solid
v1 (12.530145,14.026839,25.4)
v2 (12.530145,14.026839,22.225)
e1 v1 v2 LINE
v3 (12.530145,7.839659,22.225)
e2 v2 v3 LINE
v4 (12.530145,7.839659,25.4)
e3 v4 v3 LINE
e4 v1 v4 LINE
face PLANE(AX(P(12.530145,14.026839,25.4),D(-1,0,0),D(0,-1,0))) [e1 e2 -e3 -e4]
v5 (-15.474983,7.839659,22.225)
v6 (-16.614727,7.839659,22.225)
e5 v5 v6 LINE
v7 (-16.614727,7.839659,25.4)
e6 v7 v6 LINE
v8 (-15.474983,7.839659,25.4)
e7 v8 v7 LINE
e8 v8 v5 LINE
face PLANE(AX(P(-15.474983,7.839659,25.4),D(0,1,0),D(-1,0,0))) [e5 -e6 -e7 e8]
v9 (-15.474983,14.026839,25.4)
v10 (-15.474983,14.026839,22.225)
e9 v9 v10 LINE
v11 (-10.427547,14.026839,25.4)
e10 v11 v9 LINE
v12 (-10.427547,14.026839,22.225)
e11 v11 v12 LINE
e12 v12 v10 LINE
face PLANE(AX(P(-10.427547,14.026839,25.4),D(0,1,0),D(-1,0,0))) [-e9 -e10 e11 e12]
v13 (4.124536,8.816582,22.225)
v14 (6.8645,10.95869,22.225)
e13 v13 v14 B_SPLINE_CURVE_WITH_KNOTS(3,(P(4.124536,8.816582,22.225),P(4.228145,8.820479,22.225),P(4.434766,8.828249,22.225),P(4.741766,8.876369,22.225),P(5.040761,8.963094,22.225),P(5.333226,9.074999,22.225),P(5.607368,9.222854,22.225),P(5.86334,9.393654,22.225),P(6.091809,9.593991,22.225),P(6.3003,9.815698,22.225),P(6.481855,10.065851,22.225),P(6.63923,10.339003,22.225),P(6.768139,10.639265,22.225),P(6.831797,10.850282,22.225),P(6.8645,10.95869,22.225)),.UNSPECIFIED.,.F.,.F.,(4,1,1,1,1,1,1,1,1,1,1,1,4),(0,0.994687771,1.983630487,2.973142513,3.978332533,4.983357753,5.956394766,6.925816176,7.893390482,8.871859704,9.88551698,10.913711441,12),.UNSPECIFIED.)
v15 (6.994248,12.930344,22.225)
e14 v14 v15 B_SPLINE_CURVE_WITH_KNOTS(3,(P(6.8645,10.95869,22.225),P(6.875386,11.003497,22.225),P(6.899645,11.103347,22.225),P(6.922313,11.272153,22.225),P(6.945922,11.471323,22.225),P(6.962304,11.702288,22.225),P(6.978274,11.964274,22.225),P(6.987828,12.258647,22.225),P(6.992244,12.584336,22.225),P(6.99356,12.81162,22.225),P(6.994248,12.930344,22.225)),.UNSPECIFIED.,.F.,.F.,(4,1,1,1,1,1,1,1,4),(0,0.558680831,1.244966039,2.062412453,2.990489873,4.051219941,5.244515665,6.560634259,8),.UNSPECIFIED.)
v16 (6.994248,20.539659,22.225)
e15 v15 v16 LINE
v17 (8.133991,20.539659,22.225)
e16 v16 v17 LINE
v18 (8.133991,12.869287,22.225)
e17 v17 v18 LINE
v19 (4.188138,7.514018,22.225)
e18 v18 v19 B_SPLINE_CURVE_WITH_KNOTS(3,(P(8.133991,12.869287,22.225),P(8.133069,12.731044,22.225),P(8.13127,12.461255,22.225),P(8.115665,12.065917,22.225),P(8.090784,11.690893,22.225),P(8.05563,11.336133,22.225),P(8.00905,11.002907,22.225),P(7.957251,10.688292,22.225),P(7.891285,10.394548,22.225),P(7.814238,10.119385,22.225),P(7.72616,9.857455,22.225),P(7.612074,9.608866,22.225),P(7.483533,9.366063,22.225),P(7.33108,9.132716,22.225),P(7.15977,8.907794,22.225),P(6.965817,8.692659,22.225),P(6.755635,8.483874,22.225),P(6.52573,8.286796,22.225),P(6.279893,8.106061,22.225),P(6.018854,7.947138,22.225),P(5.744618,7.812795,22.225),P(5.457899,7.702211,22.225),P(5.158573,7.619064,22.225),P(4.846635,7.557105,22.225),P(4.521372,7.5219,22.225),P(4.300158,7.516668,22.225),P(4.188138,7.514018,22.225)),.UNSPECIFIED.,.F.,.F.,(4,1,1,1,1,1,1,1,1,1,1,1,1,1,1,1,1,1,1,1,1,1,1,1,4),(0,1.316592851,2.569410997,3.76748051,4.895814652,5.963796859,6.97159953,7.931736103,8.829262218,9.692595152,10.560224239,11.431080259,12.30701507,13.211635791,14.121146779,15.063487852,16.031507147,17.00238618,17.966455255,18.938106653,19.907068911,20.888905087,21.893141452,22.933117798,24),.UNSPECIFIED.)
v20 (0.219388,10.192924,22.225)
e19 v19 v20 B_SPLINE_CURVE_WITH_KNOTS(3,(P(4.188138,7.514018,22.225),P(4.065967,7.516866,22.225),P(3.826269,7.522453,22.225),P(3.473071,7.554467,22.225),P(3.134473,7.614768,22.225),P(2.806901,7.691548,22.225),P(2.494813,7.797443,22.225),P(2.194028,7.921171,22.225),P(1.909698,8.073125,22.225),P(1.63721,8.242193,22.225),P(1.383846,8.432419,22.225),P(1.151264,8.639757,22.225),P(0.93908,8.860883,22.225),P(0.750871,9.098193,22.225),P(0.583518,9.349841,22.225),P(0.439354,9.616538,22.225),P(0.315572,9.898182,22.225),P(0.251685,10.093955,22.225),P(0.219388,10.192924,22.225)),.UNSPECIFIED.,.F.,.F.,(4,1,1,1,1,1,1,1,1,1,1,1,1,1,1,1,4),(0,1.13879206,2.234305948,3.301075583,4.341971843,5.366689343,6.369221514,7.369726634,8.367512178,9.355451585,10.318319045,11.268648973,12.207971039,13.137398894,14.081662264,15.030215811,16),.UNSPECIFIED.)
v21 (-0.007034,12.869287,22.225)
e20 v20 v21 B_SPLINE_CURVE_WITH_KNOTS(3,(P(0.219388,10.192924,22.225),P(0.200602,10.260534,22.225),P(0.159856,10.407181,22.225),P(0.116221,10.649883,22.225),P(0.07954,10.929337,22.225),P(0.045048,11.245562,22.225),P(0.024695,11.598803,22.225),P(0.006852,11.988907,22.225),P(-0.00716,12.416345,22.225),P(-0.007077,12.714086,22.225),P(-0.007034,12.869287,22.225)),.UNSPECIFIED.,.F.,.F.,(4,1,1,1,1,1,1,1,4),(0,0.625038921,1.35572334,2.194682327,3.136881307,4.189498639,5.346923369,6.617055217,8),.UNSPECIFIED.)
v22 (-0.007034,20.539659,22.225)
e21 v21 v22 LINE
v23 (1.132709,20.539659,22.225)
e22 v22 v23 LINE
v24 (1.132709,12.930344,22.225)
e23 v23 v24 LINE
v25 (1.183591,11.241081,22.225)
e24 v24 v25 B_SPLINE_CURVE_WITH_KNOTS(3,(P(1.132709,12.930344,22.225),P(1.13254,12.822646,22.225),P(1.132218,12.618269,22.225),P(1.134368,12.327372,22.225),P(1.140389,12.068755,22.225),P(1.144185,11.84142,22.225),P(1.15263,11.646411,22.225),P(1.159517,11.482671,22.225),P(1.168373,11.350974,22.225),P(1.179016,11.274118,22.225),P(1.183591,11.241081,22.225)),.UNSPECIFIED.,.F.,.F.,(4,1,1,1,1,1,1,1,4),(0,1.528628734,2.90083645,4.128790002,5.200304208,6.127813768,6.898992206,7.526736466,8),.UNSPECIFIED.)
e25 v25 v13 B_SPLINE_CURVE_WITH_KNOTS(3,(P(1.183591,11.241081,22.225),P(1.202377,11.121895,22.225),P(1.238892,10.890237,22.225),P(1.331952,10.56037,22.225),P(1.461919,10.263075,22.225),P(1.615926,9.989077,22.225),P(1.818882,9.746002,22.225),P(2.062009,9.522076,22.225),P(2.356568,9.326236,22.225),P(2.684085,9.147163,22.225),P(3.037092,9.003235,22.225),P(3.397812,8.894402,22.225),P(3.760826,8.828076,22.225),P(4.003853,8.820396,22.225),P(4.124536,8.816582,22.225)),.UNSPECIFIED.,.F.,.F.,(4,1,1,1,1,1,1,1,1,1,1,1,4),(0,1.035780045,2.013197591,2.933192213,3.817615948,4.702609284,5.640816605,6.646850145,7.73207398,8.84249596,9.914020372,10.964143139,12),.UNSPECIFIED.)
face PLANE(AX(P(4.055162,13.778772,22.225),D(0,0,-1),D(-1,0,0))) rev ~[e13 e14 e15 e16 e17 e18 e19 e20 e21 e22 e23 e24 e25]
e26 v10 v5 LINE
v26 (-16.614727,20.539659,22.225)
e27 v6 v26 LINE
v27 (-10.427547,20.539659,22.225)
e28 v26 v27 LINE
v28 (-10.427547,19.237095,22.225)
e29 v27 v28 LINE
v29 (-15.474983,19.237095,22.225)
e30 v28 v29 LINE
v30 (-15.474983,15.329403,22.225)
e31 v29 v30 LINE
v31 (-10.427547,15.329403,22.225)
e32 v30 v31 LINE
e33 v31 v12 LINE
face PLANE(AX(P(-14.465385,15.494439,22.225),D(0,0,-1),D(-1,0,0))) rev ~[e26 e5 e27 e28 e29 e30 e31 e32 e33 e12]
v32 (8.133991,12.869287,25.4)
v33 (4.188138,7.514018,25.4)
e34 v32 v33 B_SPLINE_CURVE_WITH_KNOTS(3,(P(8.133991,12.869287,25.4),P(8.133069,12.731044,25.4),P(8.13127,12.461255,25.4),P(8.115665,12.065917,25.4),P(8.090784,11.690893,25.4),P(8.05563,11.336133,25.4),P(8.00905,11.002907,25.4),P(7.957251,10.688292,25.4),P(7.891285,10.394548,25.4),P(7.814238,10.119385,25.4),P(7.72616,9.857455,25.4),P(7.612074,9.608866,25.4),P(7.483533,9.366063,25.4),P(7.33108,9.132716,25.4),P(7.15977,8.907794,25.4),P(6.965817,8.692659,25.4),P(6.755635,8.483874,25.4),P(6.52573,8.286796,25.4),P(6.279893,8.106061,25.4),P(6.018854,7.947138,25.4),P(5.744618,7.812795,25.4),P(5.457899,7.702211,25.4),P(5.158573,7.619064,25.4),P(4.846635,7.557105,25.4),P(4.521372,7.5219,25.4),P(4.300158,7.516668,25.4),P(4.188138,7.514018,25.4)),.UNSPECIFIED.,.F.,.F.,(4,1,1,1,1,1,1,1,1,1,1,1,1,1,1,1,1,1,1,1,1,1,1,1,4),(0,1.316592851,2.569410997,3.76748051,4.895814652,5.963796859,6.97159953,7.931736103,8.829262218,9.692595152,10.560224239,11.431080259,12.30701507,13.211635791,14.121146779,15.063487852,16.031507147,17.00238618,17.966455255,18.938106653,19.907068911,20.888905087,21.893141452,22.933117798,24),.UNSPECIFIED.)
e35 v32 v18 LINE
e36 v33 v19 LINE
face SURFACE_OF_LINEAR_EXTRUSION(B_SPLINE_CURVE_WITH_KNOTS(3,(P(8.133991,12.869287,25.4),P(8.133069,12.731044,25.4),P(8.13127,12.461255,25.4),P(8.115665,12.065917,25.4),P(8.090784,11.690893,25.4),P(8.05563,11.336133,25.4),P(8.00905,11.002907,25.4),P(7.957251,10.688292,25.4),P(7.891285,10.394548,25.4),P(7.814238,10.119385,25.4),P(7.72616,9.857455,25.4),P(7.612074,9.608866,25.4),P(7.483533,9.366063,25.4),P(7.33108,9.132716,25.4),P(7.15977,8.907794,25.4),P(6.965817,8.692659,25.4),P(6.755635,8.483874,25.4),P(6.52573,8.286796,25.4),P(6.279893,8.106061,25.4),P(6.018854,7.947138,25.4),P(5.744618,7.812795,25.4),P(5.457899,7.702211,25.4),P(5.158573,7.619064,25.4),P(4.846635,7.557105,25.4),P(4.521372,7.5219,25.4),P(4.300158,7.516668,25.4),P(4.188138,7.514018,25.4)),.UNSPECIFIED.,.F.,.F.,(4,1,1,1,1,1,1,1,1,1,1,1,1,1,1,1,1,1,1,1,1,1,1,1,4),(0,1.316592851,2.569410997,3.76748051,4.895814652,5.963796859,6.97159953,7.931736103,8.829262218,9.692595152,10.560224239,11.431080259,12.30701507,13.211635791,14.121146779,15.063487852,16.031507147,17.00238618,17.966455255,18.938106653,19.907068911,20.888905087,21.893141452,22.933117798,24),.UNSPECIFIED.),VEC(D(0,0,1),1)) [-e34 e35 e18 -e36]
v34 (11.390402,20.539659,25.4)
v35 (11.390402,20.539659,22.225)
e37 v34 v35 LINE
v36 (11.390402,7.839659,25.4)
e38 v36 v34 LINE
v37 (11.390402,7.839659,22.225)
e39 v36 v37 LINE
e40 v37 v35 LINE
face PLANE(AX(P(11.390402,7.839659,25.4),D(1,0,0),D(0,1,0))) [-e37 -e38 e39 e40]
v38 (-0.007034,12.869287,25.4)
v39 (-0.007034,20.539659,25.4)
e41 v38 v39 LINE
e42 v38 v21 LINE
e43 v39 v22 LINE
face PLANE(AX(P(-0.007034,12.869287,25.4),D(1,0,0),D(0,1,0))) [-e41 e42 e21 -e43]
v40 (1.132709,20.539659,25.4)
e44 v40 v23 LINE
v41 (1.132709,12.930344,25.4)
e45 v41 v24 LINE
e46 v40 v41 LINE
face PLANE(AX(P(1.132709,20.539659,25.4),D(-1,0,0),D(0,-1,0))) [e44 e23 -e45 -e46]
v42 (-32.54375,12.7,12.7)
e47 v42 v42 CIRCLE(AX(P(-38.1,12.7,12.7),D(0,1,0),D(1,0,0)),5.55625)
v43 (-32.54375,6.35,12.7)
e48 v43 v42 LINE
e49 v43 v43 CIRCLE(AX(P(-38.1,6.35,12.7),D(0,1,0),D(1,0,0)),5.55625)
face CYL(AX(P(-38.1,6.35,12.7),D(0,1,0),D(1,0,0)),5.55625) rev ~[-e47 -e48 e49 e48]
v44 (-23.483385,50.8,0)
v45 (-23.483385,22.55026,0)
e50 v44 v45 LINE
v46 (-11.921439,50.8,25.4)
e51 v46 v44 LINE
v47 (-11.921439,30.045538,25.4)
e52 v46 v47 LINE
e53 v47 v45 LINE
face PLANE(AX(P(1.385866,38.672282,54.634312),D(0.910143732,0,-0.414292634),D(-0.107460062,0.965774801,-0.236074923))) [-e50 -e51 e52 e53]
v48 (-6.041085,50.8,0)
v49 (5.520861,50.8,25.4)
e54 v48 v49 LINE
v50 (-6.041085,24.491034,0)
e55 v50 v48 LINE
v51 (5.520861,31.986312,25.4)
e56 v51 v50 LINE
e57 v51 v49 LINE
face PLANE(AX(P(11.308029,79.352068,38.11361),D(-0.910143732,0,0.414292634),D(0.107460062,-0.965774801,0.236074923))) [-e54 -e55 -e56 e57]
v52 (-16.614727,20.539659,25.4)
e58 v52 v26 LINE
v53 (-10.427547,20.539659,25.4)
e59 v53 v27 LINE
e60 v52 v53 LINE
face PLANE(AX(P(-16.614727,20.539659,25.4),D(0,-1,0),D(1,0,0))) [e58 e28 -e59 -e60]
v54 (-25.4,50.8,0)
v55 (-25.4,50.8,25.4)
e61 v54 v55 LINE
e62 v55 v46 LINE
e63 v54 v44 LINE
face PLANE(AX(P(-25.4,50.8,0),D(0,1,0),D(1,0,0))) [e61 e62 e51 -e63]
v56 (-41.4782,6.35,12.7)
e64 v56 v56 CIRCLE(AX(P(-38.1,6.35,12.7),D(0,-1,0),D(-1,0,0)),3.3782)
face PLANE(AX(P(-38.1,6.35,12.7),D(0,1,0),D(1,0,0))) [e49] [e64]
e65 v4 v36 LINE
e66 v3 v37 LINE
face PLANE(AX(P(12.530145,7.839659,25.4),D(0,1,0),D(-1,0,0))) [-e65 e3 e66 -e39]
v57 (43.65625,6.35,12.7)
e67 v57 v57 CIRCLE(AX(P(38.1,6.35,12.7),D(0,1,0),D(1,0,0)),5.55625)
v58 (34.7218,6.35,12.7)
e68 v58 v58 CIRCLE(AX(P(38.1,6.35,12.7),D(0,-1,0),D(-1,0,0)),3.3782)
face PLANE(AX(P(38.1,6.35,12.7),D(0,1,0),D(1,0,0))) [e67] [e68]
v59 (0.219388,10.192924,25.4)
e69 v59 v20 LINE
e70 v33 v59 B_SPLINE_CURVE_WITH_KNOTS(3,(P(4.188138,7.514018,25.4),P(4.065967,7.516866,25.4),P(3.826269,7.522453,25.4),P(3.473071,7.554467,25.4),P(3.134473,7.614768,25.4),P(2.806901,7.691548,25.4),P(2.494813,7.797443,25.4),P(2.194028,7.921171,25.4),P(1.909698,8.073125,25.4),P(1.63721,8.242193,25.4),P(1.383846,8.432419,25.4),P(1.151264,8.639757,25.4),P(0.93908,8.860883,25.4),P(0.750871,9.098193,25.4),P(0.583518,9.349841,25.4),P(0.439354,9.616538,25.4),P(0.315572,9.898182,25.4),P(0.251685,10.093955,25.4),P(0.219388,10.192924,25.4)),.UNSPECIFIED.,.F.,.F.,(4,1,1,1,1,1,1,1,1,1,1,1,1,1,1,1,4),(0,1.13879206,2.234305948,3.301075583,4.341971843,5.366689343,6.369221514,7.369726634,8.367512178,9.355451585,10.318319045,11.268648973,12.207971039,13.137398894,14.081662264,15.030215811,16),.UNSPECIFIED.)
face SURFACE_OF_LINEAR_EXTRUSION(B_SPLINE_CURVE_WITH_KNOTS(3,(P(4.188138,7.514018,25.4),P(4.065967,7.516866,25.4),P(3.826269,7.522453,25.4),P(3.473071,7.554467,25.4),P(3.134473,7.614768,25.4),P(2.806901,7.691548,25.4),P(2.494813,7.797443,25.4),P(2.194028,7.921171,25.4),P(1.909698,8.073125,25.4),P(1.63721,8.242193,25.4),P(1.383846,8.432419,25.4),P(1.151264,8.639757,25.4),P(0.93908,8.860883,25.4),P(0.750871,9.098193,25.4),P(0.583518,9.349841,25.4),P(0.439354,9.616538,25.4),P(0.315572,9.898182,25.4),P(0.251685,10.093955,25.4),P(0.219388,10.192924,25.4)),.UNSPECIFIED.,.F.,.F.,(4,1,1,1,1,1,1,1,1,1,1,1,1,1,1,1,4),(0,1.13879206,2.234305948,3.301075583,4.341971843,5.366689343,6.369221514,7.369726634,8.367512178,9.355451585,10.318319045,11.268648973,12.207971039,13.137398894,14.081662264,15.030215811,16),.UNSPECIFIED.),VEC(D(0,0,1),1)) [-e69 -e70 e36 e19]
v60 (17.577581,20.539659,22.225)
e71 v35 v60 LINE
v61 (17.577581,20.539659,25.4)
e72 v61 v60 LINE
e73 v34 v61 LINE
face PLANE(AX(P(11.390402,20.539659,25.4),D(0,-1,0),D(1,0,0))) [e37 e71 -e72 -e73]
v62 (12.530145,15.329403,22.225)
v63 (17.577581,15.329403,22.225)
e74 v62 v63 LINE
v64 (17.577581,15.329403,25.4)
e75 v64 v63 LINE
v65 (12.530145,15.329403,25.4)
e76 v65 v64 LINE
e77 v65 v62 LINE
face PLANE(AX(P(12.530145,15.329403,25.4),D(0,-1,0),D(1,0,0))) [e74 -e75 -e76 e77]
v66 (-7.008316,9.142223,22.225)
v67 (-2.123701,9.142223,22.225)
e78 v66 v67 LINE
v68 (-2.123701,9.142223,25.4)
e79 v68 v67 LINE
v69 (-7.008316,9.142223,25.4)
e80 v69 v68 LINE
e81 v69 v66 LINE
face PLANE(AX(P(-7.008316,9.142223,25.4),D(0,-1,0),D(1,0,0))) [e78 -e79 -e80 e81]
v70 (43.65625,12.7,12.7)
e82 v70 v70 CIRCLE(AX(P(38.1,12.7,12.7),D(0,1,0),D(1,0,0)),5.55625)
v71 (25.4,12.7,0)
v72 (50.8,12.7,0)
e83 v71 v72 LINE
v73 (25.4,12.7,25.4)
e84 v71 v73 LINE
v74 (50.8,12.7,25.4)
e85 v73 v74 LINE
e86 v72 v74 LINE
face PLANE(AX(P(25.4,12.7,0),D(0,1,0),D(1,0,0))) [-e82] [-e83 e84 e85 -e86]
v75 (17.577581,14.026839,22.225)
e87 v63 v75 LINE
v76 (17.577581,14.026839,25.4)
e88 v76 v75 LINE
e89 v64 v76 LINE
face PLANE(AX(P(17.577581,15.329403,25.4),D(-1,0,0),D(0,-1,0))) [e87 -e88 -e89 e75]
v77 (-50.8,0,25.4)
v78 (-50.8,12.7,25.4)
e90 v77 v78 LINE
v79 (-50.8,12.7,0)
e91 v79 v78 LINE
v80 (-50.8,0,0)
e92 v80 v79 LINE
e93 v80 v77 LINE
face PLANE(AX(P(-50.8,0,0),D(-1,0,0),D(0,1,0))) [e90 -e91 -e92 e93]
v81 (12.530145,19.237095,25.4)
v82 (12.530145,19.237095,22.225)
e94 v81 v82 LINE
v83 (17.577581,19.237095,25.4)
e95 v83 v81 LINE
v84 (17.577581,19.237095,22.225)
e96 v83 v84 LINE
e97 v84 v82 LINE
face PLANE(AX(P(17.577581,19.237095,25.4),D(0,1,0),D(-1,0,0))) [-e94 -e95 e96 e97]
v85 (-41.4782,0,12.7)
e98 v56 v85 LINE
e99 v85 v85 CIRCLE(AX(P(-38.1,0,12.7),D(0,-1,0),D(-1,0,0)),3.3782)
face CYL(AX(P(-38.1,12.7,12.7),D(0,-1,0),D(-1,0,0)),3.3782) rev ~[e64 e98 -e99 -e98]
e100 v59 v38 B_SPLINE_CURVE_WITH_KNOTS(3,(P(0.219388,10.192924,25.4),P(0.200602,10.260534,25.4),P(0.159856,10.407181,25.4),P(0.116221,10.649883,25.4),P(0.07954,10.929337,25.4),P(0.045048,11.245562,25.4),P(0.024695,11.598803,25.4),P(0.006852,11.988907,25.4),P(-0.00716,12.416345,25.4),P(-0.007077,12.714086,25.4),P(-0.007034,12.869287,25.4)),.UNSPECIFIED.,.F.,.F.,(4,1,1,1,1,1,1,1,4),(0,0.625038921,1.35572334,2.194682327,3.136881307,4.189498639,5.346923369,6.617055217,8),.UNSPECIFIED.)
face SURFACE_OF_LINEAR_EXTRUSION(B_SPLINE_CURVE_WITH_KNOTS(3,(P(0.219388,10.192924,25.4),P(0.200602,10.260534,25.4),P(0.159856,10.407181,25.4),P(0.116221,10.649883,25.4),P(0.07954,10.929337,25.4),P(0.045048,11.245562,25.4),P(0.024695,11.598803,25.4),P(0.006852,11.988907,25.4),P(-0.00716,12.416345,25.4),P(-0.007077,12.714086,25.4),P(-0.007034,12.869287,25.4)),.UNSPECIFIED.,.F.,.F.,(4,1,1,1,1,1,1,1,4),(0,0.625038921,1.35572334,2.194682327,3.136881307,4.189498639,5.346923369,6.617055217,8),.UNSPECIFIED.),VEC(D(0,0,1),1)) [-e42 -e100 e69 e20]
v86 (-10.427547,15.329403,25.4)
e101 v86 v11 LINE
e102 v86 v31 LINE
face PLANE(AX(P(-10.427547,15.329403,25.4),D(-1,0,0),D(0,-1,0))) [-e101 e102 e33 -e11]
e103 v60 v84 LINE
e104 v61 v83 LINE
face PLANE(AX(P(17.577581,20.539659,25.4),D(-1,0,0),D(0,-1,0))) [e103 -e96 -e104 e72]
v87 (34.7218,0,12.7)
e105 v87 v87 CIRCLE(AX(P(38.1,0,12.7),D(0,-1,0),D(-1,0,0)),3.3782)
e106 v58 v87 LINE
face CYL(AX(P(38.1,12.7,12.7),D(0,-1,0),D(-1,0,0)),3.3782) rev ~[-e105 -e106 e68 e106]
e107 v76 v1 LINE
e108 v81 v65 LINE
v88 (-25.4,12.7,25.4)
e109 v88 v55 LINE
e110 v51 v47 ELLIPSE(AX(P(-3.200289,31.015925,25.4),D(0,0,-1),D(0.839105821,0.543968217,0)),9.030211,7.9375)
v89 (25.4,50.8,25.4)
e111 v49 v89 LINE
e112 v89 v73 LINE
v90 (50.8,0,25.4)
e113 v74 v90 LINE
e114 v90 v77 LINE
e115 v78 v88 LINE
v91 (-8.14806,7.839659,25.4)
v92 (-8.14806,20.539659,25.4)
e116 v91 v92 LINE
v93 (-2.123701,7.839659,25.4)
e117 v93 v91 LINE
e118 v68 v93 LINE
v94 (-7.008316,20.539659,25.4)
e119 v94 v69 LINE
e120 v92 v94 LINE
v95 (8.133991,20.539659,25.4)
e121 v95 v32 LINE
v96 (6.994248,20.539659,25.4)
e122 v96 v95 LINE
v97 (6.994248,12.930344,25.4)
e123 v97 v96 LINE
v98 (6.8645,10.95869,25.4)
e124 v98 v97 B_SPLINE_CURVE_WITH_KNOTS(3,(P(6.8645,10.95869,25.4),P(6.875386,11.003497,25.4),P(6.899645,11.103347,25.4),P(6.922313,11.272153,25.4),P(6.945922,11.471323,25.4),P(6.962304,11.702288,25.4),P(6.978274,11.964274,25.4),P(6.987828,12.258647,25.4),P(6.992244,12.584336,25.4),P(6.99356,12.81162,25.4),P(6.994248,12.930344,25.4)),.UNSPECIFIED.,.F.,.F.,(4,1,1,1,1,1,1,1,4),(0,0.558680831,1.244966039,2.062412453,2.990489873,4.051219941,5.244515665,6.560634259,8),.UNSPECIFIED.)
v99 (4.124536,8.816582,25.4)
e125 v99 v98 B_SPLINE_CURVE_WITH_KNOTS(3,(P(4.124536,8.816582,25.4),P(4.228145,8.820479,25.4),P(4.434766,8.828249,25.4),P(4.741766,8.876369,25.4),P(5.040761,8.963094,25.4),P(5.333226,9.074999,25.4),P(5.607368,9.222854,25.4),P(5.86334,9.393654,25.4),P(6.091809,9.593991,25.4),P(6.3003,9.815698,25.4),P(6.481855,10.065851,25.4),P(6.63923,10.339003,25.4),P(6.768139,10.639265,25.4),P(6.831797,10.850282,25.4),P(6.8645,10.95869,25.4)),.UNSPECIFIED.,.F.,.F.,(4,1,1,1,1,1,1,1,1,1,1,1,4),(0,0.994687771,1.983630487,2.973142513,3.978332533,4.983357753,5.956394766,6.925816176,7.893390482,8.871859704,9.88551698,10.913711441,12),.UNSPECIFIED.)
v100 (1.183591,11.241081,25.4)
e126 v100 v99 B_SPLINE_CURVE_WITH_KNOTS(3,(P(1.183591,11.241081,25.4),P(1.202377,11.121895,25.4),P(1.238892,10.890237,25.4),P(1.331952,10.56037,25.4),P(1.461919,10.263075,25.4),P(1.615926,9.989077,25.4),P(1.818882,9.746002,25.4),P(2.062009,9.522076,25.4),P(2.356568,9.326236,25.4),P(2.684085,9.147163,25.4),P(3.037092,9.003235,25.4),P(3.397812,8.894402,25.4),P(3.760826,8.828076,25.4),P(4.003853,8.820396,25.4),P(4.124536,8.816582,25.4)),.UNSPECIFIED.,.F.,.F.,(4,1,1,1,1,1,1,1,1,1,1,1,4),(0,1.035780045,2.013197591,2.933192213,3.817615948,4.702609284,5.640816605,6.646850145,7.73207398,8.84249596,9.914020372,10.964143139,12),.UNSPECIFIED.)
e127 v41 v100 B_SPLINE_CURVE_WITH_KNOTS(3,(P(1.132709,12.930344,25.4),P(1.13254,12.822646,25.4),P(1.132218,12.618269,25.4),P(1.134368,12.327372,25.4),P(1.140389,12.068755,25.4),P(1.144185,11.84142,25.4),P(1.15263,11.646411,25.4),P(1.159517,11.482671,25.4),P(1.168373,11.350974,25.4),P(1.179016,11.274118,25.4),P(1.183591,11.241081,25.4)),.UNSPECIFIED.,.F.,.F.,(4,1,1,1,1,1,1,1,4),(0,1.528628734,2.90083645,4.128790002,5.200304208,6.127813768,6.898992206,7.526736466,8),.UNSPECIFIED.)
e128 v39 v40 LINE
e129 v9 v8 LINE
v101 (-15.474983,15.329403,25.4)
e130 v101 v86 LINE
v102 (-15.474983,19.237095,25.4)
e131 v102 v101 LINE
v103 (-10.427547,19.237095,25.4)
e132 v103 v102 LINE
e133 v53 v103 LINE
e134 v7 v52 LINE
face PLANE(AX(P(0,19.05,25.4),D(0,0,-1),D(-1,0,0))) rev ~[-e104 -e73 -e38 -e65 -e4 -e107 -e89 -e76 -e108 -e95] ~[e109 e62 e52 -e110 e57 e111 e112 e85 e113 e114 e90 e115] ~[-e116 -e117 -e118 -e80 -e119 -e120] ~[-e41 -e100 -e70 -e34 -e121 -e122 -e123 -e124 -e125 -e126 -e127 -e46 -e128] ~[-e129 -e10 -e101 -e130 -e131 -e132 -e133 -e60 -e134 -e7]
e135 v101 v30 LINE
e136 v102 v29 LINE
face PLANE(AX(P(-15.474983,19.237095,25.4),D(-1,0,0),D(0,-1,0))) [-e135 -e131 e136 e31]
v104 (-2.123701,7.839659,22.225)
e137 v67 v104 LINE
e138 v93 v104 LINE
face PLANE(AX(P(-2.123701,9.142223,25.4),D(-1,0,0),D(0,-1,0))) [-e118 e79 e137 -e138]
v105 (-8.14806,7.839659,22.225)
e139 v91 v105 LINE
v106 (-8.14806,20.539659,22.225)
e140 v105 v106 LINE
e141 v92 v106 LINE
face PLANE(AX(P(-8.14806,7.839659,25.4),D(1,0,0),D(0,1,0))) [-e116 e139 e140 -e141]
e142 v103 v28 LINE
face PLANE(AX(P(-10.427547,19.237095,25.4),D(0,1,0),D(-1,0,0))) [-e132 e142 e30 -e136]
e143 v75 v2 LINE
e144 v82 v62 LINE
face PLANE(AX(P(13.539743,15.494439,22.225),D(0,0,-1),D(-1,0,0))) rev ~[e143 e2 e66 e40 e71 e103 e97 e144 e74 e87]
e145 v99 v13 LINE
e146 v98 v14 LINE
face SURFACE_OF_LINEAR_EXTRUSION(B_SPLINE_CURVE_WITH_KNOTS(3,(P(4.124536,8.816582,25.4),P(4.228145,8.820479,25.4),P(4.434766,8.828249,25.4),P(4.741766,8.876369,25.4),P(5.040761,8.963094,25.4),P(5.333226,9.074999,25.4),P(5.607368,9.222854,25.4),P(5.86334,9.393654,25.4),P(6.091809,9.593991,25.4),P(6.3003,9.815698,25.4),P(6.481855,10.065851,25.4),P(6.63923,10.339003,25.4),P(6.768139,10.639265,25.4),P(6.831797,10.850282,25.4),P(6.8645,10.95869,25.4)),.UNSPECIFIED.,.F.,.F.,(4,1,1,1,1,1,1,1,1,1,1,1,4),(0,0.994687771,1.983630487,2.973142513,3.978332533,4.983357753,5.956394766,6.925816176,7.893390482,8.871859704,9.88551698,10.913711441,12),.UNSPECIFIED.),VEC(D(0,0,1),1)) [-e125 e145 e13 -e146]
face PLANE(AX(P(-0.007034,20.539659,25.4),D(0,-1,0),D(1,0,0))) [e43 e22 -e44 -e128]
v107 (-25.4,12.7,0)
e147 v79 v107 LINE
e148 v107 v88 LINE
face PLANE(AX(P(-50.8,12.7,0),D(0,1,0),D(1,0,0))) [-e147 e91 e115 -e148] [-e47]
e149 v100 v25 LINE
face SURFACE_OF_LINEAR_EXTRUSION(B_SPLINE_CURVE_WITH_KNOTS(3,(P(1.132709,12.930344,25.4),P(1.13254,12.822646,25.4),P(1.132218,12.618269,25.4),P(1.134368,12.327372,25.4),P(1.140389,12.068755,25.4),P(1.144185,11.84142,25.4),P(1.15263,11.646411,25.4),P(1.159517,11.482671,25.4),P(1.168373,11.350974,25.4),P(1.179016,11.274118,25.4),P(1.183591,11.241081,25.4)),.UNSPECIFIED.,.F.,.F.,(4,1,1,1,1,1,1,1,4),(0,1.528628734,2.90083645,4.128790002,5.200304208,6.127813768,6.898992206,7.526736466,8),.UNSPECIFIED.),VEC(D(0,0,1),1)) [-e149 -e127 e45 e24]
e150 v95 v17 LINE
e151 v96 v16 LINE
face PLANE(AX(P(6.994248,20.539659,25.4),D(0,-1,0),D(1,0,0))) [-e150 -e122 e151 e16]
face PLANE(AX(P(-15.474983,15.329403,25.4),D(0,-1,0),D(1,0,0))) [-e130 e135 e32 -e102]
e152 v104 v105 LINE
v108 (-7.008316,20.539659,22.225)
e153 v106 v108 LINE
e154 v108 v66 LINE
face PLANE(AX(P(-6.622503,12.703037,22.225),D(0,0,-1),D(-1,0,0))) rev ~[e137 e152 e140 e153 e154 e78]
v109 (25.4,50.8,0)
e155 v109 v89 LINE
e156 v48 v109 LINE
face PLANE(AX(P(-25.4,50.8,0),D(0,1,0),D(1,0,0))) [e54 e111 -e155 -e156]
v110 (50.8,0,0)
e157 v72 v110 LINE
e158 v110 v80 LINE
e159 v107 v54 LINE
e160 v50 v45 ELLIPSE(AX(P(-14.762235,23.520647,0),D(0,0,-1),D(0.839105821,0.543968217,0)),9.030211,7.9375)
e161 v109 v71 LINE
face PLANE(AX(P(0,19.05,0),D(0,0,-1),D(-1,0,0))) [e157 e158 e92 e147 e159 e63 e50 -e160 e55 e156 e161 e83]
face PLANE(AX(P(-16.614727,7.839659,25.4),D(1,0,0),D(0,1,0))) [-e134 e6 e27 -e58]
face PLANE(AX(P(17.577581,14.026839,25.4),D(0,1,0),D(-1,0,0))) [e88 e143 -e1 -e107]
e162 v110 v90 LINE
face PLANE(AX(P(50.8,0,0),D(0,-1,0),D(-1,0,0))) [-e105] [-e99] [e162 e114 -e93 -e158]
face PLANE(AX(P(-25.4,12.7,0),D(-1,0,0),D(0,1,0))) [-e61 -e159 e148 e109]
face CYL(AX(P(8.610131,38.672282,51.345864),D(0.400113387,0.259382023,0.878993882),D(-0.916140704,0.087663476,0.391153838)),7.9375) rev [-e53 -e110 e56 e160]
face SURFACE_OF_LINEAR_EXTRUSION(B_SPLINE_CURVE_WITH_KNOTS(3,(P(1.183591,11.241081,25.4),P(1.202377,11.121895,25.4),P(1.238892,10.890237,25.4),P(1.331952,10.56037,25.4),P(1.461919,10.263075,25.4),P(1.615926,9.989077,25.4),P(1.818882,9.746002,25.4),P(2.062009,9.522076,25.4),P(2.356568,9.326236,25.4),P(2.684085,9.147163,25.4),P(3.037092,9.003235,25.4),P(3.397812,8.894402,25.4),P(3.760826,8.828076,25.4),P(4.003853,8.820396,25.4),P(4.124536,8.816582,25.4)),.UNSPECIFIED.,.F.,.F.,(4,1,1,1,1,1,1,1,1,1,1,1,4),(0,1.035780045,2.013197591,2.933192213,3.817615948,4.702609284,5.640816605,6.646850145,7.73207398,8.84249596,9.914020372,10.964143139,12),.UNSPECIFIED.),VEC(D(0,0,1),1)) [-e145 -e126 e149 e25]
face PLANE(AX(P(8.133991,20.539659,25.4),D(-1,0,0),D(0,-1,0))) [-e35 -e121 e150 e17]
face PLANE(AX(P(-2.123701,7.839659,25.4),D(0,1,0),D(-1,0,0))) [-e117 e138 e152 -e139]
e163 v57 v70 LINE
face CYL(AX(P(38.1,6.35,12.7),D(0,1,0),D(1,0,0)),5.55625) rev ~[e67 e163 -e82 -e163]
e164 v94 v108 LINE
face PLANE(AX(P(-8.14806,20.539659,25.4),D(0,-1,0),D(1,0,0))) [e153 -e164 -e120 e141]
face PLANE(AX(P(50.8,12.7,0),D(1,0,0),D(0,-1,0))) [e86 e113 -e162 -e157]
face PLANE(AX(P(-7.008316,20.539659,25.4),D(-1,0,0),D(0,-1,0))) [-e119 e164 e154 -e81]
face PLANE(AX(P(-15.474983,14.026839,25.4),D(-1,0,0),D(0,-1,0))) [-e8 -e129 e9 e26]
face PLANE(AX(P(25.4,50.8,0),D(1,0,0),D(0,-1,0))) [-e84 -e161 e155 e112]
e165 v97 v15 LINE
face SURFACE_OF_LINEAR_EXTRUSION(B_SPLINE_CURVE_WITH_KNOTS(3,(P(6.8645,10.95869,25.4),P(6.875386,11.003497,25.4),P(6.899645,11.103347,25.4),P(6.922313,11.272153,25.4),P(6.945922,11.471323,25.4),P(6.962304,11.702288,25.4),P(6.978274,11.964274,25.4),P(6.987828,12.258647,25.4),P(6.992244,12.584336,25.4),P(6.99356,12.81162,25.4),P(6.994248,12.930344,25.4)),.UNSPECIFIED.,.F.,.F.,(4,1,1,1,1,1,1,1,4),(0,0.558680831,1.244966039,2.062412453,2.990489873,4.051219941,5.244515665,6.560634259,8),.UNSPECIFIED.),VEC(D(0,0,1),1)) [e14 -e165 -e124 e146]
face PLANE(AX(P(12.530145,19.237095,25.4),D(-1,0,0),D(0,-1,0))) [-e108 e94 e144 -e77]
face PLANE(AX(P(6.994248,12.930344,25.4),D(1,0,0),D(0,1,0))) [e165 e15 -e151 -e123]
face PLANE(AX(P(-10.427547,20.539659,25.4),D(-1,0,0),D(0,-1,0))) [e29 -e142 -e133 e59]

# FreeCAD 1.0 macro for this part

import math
import FreeCAD as App
import Part
import Sketcher
Q = App.Units.Quantity

doc = App.newDocument("Part")
body = doc.addObject("PartDesign::Body", "Body")

sketch1 = body.newObject("Sketcher::SketchObject", "Sketch")
sketch1.AttachmentSupport = (doc.getObject("XY_Plane"), [""])
sketch1.MapMode = "FlatFace"
sketch1.addGeometry([
    Part.LineSegment(App.Vector(51, 13, 0), App.Vector(25, 13, 0)),
    Part.LineSegment(App.Vector(25, 13, 0), App.Vector(25, 51, 0)),
    Part.LineSegment(App.Vector(25, 51, 0), App.Vector(-25, 51, 0)),
    Part.LineSegment(App.Vector(-25, 51, 0), App.Vector(-25, 13, 0)),
    Part.LineSegment(App.Vector(-25, 13, 0), App.Vector(-51, 13, 0)),
    Part.LineSegment(App.Vector(-51, 13, 0), App.Vector(-51, 0, 0)),
    Part.LineSegment(App.Vector(-51, 0, 0), App.Vector(51, 0, 0)),
    Part.LineSegment(App.Vector(51, 0, 0), App.Vector(51, 13, 0)),
], False)
sketch1.addConstraint([
    Sketcher.Constraint("Coincident", 0, 2, 1, 1),
    Sketcher.Constraint("Coincident", 1, 2, 2, 1),
    Sketcher.Constraint("Coincident", 2, 2, 3, 1),
    Sketcher.Constraint("Coincident", 3, 2, 4, 1),
    Sketcher.Constraint("Coincident", 4, 2, 5, 1),
    Sketcher.Constraint("Coincident", 5, 2, 6, 1),
    Sketcher.Constraint("Coincident", 6, 2, 7, 1),
    Sketcher.Constraint("Coincident", 7, 2, 0, 1),
    Sketcher.Constraint("Horizontal", 0),
    Sketcher.Constraint("Vertical", 1),
    Sketcher.Constraint("Horizontal", 2),
    Sketcher.Constraint("Vertical", 3),
    Sketcher.Constraint("Horizontal", 4),
    Sketcher.Constraint("Vertical", 5),
    Sketcher.Constraint("Horizontal", 6),
    Sketcher.Constraint("Vertical", 7),
    Sketcher.Constraint("Symmetric", 5, 2, 6, 2, -1, 1),
    Sketcher.Constraint("Symmetric", 0, 2, 3, 2, -2),
    Sketcher.Constraint("DistanceX", 0, 2, 0, 1, Q("1 in")),
    Sketcher.Constraint("DistanceX", 2, 2, 2, 1, Q("2 in")),
    Sketcher.Constraint("DistanceY", 1, 1, 1, 2, Q("1.5 in")),
    Sketcher.Constraint("DistanceY", 5, 2, 5, 1, Q("0.5 in")),
])
pad1 = body.newObject("PartDesign::Pad", "Pad")
pad1.Profile = sketch1
pad1.Length = Q("1 in")

sketch2 = body.newObject("Sketcher::SketchObject", "Sketch001")
sketch2.AttachmentSupport = (doc.getObject("XZ_Plane"), [""])
sketch2.MapMode = "FlatFace"
sketch2.AttachmentOffset = App.Placement(App.Vector(0, 0, -0.5 * 25.4), App.Rotation())
sketch2.addGeometry([
    Part.Circle(App.Vector(-38.1, 12.7, 0), App.Vector(0, 0, 1), 3.4),
    Part.Circle(App.Vector(38.1, 12.7, 0), App.Vector(0, 0, 1), 3.4),
], False)
sketch2.addConstraint([
    Sketcher.Constraint("Equal", 0, 1),
    Sketcher.Constraint("Symmetric", 0, 3, 1, 3, -2),
    Sketcher.Constraint("Diameter", 0, Q("0.266 in")),
    Sketcher.Constraint("DistanceX", 0, 3, 1, 3, Q("3 in")),
    Sketcher.Constraint("DistanceY", -1, 1, 0, 3, Q("0.5 in")),
])
doc.recompute()
hole = body.newObject("PartDesign::Hole", "Hole")
hole.Profile = sketch2
hole.ThreadType = "None"
hole.Diameter = Q("0.266 in")
hole.DepthType = "ThroughAll"
hole.HoleCutType = "Counterbore"
hole.HoleCutDiameter = Q("0.4375 in")
hole.HoleCutDepth = Q("0.25 in")
hole.Reversed = True

sketch3 = body.newObject("Sketcher::SketchObject", "Sketch002")
sketch3.Placement = App.Placement(App.Vector(8.610131, 38.672282, 51.345864), App.Rotation(App.Vector(-0.916140704, 0.087663476, 0.391153838), App.Vector(-0.024402615, 0.961787961, -0.272705759), App.Vector(-0.400113387, -0.259382023, -0.878993882), "ZXY"))
sketch3.addGeometry([
    Part.ArcOfCircle(Part.Circle(App.Vector(0, 0, 0), App.Vector(0, 0, 1), 8), math.radians(175), math.radians(355)),
    Part.LineSegment(App.Vector(8, -1, 0), App.Vector(12, 41, 0)),
    Part.LineSegment(App.Vector(12, 41, 0), App.Vector(-4, 43, 0)),
    Part.LineSegment(App.Vector(-4, 43, 0), App.Vector(-8, 1, 0)),
], False)
sketch3.addConstraint([
    Sketcher.Constraint("Tangent", 0, 2, 1, 1),
    Sketcher.Constraint("Coincident", 1, 2, 2, 1),
    Sketcher.Constraint("Coincident", 2, 2, 3, 1),
    Sketcher.Constraint("Tangent", 3, 2, 0, 1),
    Sketcher.Constraint("Coincident", 0, 3, -1, 1),
    Sketcher.Constraint("Perpendicular", 1, 2),
    Sketcher.Constraint("Perpendicular", 2, 3),
    Sketcher.Constraint("Radius", 0, Q("0.3125 in")),
    Sketcher.Constraint("Distance", 1, Q("42.1214 mm")),
    Sketcher.Constraint("DistanceY", -1, 1, 1, 2, Q("41.22703 mm")),
])
pocket1 = body.newObject("PartDesign::Pocket", "Pocket")
pocket1.Profile = sketch3
pocket1.Type = "ThroughAll"
pocket1.Reversed = True

sketch4 = body.newObject("Sketcher::SketchObject", "Sketch003")
sketch4.AttachmentSupport = (doc.getObject("XY_Plane"), [""])
sketch4.MapMode = "FlatFace"
sketch4.AttachmentOffset = App.Placement(App.Vector(0, 0, 1 * 25.4), App.Rotation())
sketch4.addGeometry([
    Part.LineSegment(App.Vector(-10.427547, 20.539659, 0), App.Vector(-16.614727, 20.539659, 0)),
    Part.LineSegment(App.Vector(-16.614727, 20.539659, 0), App.Vector(-16.614727, 7.839659, 0)),
    Part.LineSegment(App.Vector(-16.614727, 7.839659, 0), App.Vector(-15.474983, 7.839659, 0)),
    Part.LineSegment(App.Vector(-15.474983, 7.839659, 0), App.Vector(-15.474983, 14.026839, 0)),
    Part.LineSegment(App.Vector(-15.474983, 14.026839, 0), App.Vector(-10.427547, 14.026839, 0)),
    Part.LineSegment(App.Vector(-10.427547, 14.026839, 0), App.Vector(-10.427547, 15.329403, 0)),
    Part.LineSegment(App.Vector(-10.427547, 15.329403, 0), App.Vector(-15.474983, 15.329403, 0)),
    Part.LineSegment(App.Vector(-15.474983, 15.329403, 0), App.Vector(-15.474983, 19.237095, 0)),
    Part.LineSegment(App.Vector(-15.474983, 19.237095, 0), App.Vector(-10.427547, 19.237095, 0)),
    Part.LineSegment(App.Vector(-10.427547, 19.237095, 0), App.Vector(-10.427547, 20.539659, 0)),
    Part.LineSegment(App.Vector(-7.008316, 20.539659, 0), App.Vector(-8.14806, 20.539659, 0)),
    Part.LineSegment(App.Vector(-8.14806, 20.539659, 0), App.Vector(-8.14806, 7.839659, 0)),
    Part.LineSegment(App.Vector(-8.14806, 7.839659, 0), App.Vector(-2.123701, 7.839659, 0)),
    Part.LineSegment(App.Vector(-2.123701, 7.839659, 0), App.Vector(-2.123701, 9.142223, 0)),
    Part.LineSegment(App.Vector(-2.123701, 9.142223, 0), App.Vector(-7.008316, 9.142223, 0)),
    Part.LineSegment(App.Vector(-7.008316, 9.142223, 0), App.Vector(-7.008316, 20.539659, 0)),
    Part.LineSegment(App.Vector(1.132709, 20.539659, 0), App.Vector(-0.007034, 20.539659, 0)),
    Part.LineSegment(App.Vector(-0.007034, 20.539659, 0), App.Vector(-0.007034, 12.869287, 0)),
    Part.BSplineCurve([App.Vector(0.219388, 10.192924, 0), App.Vector(0.200602, 10.260534, 0), App.Vector(0.159856, 10.407181, 0), App.Vector(0.116221, 10.649883, 0), App.Vector(0.07954, 10.929337, 0), App.Vector(0.045048, 11.245562, 0), App.Vector(0.024695, 11.598803, 0), App.Vector(0.006852, 11.988907, 0), App.Vector(-0.00716, 12.416345, 0), App.Vector(-0.007077, 12.714086, 0), App.Vector(-0.007034, 12.869287, 0)], [4, 1, 1, 1, 1, 1, 1, 1, 4], [0, 0.625038921, 1.35572334, 2.194682327, 3.136881307, 4.189498639, 5.346923369, 6.617055217, 8], False, 3, [1, 1, 1, 1, 1, 1, 1, 1, 1, 1, 1], False),
    Part.BSplineCurve([App.Vector(4.188138, 7.514018, 0), App.Vector(4.065967, 7.516866, 0), App.Vector(3.826269, 7.522453, 0), App.Vector(3.473071, 7.554467, 0), App.Vector(3.134473, 7.614768, 0), App.Vector(2.806901, 7.691548, 0), App.Vector(2.494813, 7.797443, 0), App.Vector(2.194028, 7.921171, 0), App.Vector(1.909698, 8.073125, 0), App.Vector(1.63721, 8.242193, 0), App.Vector(1.383846, 8.432419, 0), App.Vector(1.151264, 8.639757, 0), App.Vector(0.93908, 8.860883, 0), App.Vector(0.750871, 9.098193, 0), App.Vector(0.583518, 9.349841, 0), App.Vector(0.439354, 9.616538, 0), App.Vector(0.315572, 9.898182, 0), App.Vector(0.251685, 10.093955, 0), App.Vector(0.219388, 10.192924, 0)], [4, 1, 1, 1, 1, 1, 1, 1, 1, 1, 1, 1, 1, 1, 1, 1, 4], [0, 1.13879206, 2.234305948, 3.301075583, 4.341971843, 5.366689343, 6.369221514, 7.369726634, 8.367512178, 9.355451585, 10.318319045, 11.268648973, 12.207971039, 13.137398894, 14.081662264, 15.030215811, 16], False, 3, [1, 1, 1, 1, 1, 1, 1, 1, 1, 1, 1, 1, 1, 1, 1, 1, 1, 1, 1], False),
    Part.BSplineCurve([App.Vector(8.133991, 12.869287, 0), App.Vector(8.133069, 12.731044, 0), App.Vector(8.13127, 12.461255, 0), App.Vector(8.115665, 12.065917, 0), App.Vector(8.090784, 11.690893, 0), App.Vector(8.05563, 11.336133, 0), App.Vector(8.00905, 11.002907, 0), App.Vector(7.957251, 10.688292, 0), App.Vector(7.891285, 10.394548, 0), App.Vector(7.814238, 10.119385, 0), App.Vector(7.72616, 9.857455, 0), App.Vector(7.612074, 9.608866, 0), App.Vector(7.483533, 9.366063, 0), App.Vector(7.33108, 9.132716, 0), App.Vector(7.15977, 8.907794, 0), App.Vector(6.965817, 8.692659, 0), App.Vector(6.755635, 8.483874, 0), App.Vector(6.52573, 8.286796, 0), App.Vector(6.279893, 8.106061, 0), App.Vector(6.018854, 7.947138, 0), App.Vector(5.744618, 7.812795, 0), App.Vector(5.457899, 7.702211, 0), App.Vector(5.158573, 7.619064, 0), App.Vector(4.846635, 7.557105, 0), App.Vector(4.521372, 7.5219, 0), App.Vector(4.300158, 7.516668, 0), App.Vector(4.188138, 7.514018, 0)], [4, 1, 1, 1, 1, 1, 1, 1, 1, 1, 1, 1, 1, 1, 1, 1, 1, 1, 1, 1, 1, 1, 1, 1, 4], [0, 1.316592851, 2.569410997, 3.76748051, 4.895814652, 5.963796859, 6.97159953, 7.931736103, 8.829262218, 9.692595152, 10.560224239, 11.431080259, 12.30701507, 13.211635791, 14.121146779, 15.063487852, 16.031507147, 17.00238618, 17.966455255, 18.938106653, 19.907068911, 20.888905087, 21.893141452, 22.933117798, 24], False, 3, [1, 1, 1, 1, 1, 1, 1, 1, 1, 1, 1, 1, 1, 1, 1, 1, 1, 1, 1, 1, 1, 1, 1, 1, 1, 1, 1], False),
    Part.LineSegment(App.Vector(8.133991, 12.869287, 0), App.Vector(8.133991, 20.539659, 0)),
    Part.LineSegment(App.Vector(8.133991, 20.539659, 0), App.Vector(6.994248, 20.539659, 0)),
    Part.LineSegment(App.Vector(6.994248, 20.539659, 0), App.Vector(6.994248, 12.930344, 0)),
    Part.BSplineCurve([App.Vector(6.8645, 10.95869, 0), App.Vector(6.875386, 11.003497, 0), App.Vector(6.899645, 11.103347, 0), App.Vector(6.922313, 11.272153, 0), App.Vector(6.945922, 11.471323, 0), App.Vector(6.962304, 11.702288, 0), App.Vector(6.978274, 11.964274, 0), App.Vector(6.987828, 12.258647, 0), App.Vector(6.992244, 12.584336, 0), App.Vector(6.99356, 12.81162, 0), App.Vector(6.994248, 12.930344, 0)], [4, 1, 1, 1, 1, 1, 1, 1, 4], [0, 0.558680831, 1.244966039, 2.062412453, 2.990489873, 4.051219941, 5.244515665, 6.560634259, 8], False, 3, [1, 1, 1, 1, 1, 1, 1, 1, 1, 1, 1], False),
    Part.BSplineCurve([App.Vector(4.124536, 8.816582, 0), App.Vector(4.228145, 8.820479, 0), App.Vector(4.434766, 8.828249, 0), App.Vector(4.741766, 8.876369, 0), App.Vector(5.040761, 8.963094, 0), App.Vector(5.333226, 9.074999, 0), App.Vector(5.607368, 9.222854, 0), App.Vector(5.86334, 9.393654, 0), App.Vector(6.091809, 9.593991, 0), App.Vector(6.3003, 9.815698, 0), App.Vector(6.481855, 10.065851, 0), App.Vector(6.63923, 10.339003, 0), App.Vector(6.768139, 10.639265, 0), App.Vector(6.831797, 10.850282, 0), App.Vector(6.8645, 10.95869, 0)], [4, 1, 1, 1, 1, 1, 1, 1, 1, 1, 1, 1, 4], [0, 0.994687771, 1.983630487, 2.973142513, 3.978332533, 4.983357753, 5.956394766, 6.925816176, 7.893390482, 8.871859704, 9.88551698, 10.913711441, 12], False, 3, [1, 1, 1, 1, 1, 1, 1, 1, 1, 1, 1, 1, 1, 1, 1], False),
    Part.BSplineCurve([App.Vector(1.183591, 11.241081, 0), App.Vector(1.202377, 11.121895, 0), App.Vector(1.238892, 10.890237, 0), App.Vector(1.331952, 10.56037, 0), App.Vector(1.461919, 10.263075, 0), App.Vector(1.615926, 9.989077, 0), App.Vector(1.818882, 9.746002, 0), App.Vector(2.062009, 9.522076, 0), App.Vector(2.356568, 9.326236, 0), App.Vector(2.684085, 9.147163, 0), App.Vector(3.037092, 9.003235, 0), App.Vector(3.397812, 8.894402, 0), App.Vector(3.760826, 8.828076, 0), App.Vector(4.003853, 8.820396, 0), App.Vector(4.124536, 8.816582, 0)], [4, 1, 1, 1, 1, 1, 1, 1, 1, 1, 1, 1, 4], [0, 1.035780045, 2.013197591, 2.933192213, 3.817615948, 4.702609284, 5.640816605, 6.646850145, 7.73207398, 8.84249596, 9.914020372, 10.964143139, 12], False, 3, [1, 1, 1, 1, 1, 1, 1, 1, 1, 1, 1, 1, 1, 1, 1], False),
    Part.BSplineCurve([App.Vector(1.132709, 12.930344, 0), App.Vector(1.13254, 12.822646, 0), App.Vector(1.132218, 12.618269, 0), App.Vector(1.134368, 12.327372, 0), App.Vector(1.140389, 12.068755, 0), App.Vector(1.144185, 11.84142, 0), App.Vector(1.15263, 11.646411, 0), App.Vector(1.159517, 11.482671, 0), App.Vector(1.168373, 11.350974, 0), App.Vector(1.179016, 11.274118, 0), App.Vector(1.183591, 11.241081, 0)], [4, 1, 1, 1, 1, 1, 1, 1, 4], [0, 1.528628734, 2.90083645, 4.128790002, 5.200304208, 6.127813768, 6.898992206, 7.526736466, 8], False, 3, [1, 1, 1, 1, 1, 1, 1, 1, 1, 1, 1], False),
    Part.LineSegment(App.Vector(1.132709, 12.930344, 0), App.Vector(1.132709, 20.539659, 0)),
    Part.LineSegment(App.Vector(17.577581, 20.539659, 0), App.Vector(11.390402, 20.539659, 0)),
    Part.LineSegment(App.Vector(11.390402, 20.539659, 0), App.Vector(11.390402, 7.839659, 0)),
    Part.LineSegment(App.Vector(11.390402, 7.839659, 0), App.Vector(12.530145, 7.839659, 0)),
    Part.LineSegment(App.Vector(12.530145, 7.839659, 0), App.Vector(12.530145, 14.026839, 0)),
    Part.LineSegment(App.Vector(12.530145, 14.026839, 0), App.Vector(17.577581, 14.026839, 0)),
    Part.LineSegment(App.Vector(17.577581, 14.026839, 0), App.Vector(17.577581, 15.329403, 0)),
    Part.LineSegment(App.Vector(17.577581, 15.329403, 0), App.Vector(12.530145, 15.329403, 0)),
    Part.LineSegment(App.Vector(12.530145, 15.329403, 0), App.Vector(12.530145, 19.237095, 0)),
    Part.LineSegment(App.Vector(12.530145, 19.237095, 0), App.Vector(17.577581, 19.237095, 0)),
    Part.LineSegment(App.Vector(17.577581, 19.237095, 0), App.Vector(17.577581, 20.539659, 0)),
], False)
sketch4.addConstraint([
    Sketcher.Constraint("Block", 18),
    Sketcher.Constraint("Block", 19),
    Sketcher.Constraint("Block", 20),
    Sketcher.Constraint("Block", 24),
    Sketcher.Constraint("Block", 25),
    Sketcher.Constraint("Block", 26),
    Sketcher.Constraint("Block", 27),
    Sketcher.Constraint("Coincident", 0, 2, 1, 1),
    Sketcher.Constraint("Coincident", 1, 2, 2, 1),
    Sketcher.Constraint("Coincident", 2, 2, 3, 1),
    Sketcher.Constraint("Coincident", 3, 2, 4, 1),
    Sketcher.Constraint("Coincident", 4, 2, 5, 1),
    Sketcher.Constraint("Coincident", 5, 2, 6, 1),
    Sketcher.Constraint("Coincident", 6, 2, 7, 1),
    Sketcher.Constraint("Coincident", 7, 2, 8, 1),
    Sketcher.Constraint("Coincident", 8, 2, 9, 1),
    Sketcher.Constraint("Coincident", 9, 2, 0, 1),
    Sketcher.Constraint("Coincident", 10, 2, 11, 1),
    Sketcher.Constraint("Coincident", 11, 2, 12, 1),
    Sketcher.Constraint("Coincident", 12, 2, 13, 1),
    Sketcher.Constraint("Coincident", 13, 2, 14, 1),
    Sketcher.Constraint("Coincident", 14, 2, 15, 1),
    Sketcher.Constraint("Coincident", 15, 2, 10, 1),
    Sketcher.Constraint("Coincident", 16, 2, 17, 1),
    Sketcher.Constraint("Coincident", 17, 2, 18, 2),
    Sketcher.Constraint("Coincident", 20, 1, 21, 1),
    Sketcher.Constraint("Coincident", 21, 2, 22, 1),
    Sketcher.Constraint("Coincident", 22, 2, 23, 1),
    Sketcher.Constraint("Coincident", 23, 2, 24, 2),
    Sketcher.Constraint("Coincident", 27, 1, 28, 1),
    Sketcher.Constraint("Coincident", 28, 2, 16, 1),
    Sketcher.Constraint("Coincident", 29, 2, 30, 1),
    Sketcher.Constraint("Coincident", 30, 2, 31, 1),
    Sketcher.Constraint("Coincident", 31, 2, 32, 1),
    Sketcher.Constraint("Coincident", 32, 2, 33, 1),
    Sketcher.Constraint("Coincident", 33, 2, 34, 1),
    Sketcher.Constraint("Coincident", 34, 2, 35, 1),
    Sketcher.Constraint("Coincident", 35, 2, 36, 1),
    Sketcher.Constraint("Coincident", 36, 2, 37, 1),
    Sketcher.Constraint("Coincident", 37, 2, 38, 1),
    Sketcher.Constraint("Coincident", 38, 2, 29, 1),
    Sketcher.Constraint("Horizontal", 0),
    Sketcher.Constraint("Vertical", 1),
    Sketcher.Constraint("Horizontal", 2),
    Sketcher.Constraint("Vertical", 3),
    Sketcher.Constraint("Horizontal", 4),
    Sketcher.Constraint("Vertical", 5),
    Sketcher.Constraint("Horizontal", 6),
    Sketcher.Constraint("Vertical", 7),
    Sketcher.Constraint("Horizontal", 8),
    Sketcher.Constraint("Vertical", 9),
    Sketcher.Constraint("Horizontal", 10),
    Sketcher.Constraint("Vertical", 11),
    Sketcher.Constraint("Horizontal", 12),
    Sketcher.Constraint("Vertical", 13),
    Sketcher.Constraint("Horizontal", 14),
    Sketcher.Constraint("Vertical", 15),
    Sketcher.Constraint("Horizontal", 16),
    Sketcher.Constraint("Vertical", 17),
    Sketcher.Constraint("Vertical", 21),
    Sketcher.Constraint("Horizontal", 22),
    Sketcher.Constraint("Vertical", 23),
    Sketcher.Constraint("Vertical", 28),
    Sketcher.Constraint("Horizontal", 29),
    Sketcher.Constraint("Vertical", 30),
    Sketcher.Constraint("Horizontal", 31),
    Sketcher.Constraint("Vertical", 32),
    Sketcher.Constraint("Horizontal", 33),
    Sketcher.Constraint("Vertical", 34),
    Sketcher.Constraint("Horizontal", 35),
    Sketcher.Constraint("Vertical", 36),
    Sketcher.Constraint("Horizontal", 37),
    Sketcher.Constraint("Vertical", 38),
    Sketcher.Constraint("DistanceY", 1, 2, 1, 1, Q("0.5 in")),
    Sketcher.Constraint("DistanceY", 11, 2, 11, 1, Q("0.5 in")),
    Sketcher.Constraint("DistanceY", 30, 2, 30, 1, Q("0.5 in")),
    Sketcher.Constraint("DistanceY", 30, 2, 21, 2, Q("0.5 in")),
    Sketcher.Constraint("DistanceX", 0, 2, 0, 1, Q("6.187179 mm")),
    Sketcher.Constraint("DistanceX", 12, 1, 12, 2, Q("6.024359 mm")),
    Sketcher.Constraint("DistanceX", 29, 2, 29, 1, Q("6.187179 mm")),
    Sketcher.Constraint("DistanceY", 3, 1, 3, 2, Q("6.187179 mm")),
    Sketcher.Constraint("DistanceY", 32, 1, 32, 2, Q("6.187179 mm")),
    Sketcher.Constraint("DistanceX", 12, 2, -1, 1, Q("2.123701 mm")),
    Sketcher.Constraint("DistanceX", -1, 1, 29, 2, Q("11.390402 mm")),
    Sketcher.Constraint("DistanceX", 2, 1, 2, 2, Q("1.139744 mm")),
    Sketcher.Constraint("DistanceX", 4, 1, 4, 2, Q("5.047436 mm")),
    Sketcher.Constraint("DistanceX", 6, 2, 6, 1, Q("5.047436 mm")),
    Sketcher.Constraint("DistanceX", 10, 2, 10, 1, Q("1.139744 mm")),
    Sketcher.Constraint("DistanceX", 31, 1, 31, 2, Q("1.139744 mm")),
    Sketcher.Constraint("DistanceX", 33, 1, 33, 2, Q("5.047436 mm")),
    Sketcher.Constraint("DistanceX", 35, 2, 35, 1, Q("5.047436 mm")),
    Sketcher.Constraint("DistanceY", 5, 1, 5, 2, Q("1.302564 mm")),
    Sketcher.Constraint("DistanceY", 7, 1, 7, 2, Q("3.907692 mm")),
    Sketcher.Constraint("DistanceY", 13, 1, 13, 2, Q("1.302564 mm")),
    Sketcher.Constraint("DistanceY", 17, 2, 17, 1, Q("7.670373 mm")),
    Sketcher.Constraint("DistanceY", 21, 1, 21, 2, Q("7.670373 mm")),
    Sketcher.Constraint("DistanceY", 34, 1, 34, 2, Q("1.302564 mm")),
    Sketcher.Constraint("DistanceY", 36, 1, 36, 2, Q("3.907692 mm")),
    Sketcher.Constraint("DistanceY", -1, 1, 0, 2, Q("20.539659 mm")),
    Sketcher.Constraint("DistanceY", -1, 1, 10, 2, Q("20.539659 mm")),
    Sketcher.Constraint("DistanceX", 4, 2, 14, 2, Q("3.419231 mm")),
])
pocket2 = body.newObject("PartDesign::Pocket", "Pocket001")
pocket2.Profile = sketch4
pocket2.Length = Q("0.125 in")

doc.recompute()
